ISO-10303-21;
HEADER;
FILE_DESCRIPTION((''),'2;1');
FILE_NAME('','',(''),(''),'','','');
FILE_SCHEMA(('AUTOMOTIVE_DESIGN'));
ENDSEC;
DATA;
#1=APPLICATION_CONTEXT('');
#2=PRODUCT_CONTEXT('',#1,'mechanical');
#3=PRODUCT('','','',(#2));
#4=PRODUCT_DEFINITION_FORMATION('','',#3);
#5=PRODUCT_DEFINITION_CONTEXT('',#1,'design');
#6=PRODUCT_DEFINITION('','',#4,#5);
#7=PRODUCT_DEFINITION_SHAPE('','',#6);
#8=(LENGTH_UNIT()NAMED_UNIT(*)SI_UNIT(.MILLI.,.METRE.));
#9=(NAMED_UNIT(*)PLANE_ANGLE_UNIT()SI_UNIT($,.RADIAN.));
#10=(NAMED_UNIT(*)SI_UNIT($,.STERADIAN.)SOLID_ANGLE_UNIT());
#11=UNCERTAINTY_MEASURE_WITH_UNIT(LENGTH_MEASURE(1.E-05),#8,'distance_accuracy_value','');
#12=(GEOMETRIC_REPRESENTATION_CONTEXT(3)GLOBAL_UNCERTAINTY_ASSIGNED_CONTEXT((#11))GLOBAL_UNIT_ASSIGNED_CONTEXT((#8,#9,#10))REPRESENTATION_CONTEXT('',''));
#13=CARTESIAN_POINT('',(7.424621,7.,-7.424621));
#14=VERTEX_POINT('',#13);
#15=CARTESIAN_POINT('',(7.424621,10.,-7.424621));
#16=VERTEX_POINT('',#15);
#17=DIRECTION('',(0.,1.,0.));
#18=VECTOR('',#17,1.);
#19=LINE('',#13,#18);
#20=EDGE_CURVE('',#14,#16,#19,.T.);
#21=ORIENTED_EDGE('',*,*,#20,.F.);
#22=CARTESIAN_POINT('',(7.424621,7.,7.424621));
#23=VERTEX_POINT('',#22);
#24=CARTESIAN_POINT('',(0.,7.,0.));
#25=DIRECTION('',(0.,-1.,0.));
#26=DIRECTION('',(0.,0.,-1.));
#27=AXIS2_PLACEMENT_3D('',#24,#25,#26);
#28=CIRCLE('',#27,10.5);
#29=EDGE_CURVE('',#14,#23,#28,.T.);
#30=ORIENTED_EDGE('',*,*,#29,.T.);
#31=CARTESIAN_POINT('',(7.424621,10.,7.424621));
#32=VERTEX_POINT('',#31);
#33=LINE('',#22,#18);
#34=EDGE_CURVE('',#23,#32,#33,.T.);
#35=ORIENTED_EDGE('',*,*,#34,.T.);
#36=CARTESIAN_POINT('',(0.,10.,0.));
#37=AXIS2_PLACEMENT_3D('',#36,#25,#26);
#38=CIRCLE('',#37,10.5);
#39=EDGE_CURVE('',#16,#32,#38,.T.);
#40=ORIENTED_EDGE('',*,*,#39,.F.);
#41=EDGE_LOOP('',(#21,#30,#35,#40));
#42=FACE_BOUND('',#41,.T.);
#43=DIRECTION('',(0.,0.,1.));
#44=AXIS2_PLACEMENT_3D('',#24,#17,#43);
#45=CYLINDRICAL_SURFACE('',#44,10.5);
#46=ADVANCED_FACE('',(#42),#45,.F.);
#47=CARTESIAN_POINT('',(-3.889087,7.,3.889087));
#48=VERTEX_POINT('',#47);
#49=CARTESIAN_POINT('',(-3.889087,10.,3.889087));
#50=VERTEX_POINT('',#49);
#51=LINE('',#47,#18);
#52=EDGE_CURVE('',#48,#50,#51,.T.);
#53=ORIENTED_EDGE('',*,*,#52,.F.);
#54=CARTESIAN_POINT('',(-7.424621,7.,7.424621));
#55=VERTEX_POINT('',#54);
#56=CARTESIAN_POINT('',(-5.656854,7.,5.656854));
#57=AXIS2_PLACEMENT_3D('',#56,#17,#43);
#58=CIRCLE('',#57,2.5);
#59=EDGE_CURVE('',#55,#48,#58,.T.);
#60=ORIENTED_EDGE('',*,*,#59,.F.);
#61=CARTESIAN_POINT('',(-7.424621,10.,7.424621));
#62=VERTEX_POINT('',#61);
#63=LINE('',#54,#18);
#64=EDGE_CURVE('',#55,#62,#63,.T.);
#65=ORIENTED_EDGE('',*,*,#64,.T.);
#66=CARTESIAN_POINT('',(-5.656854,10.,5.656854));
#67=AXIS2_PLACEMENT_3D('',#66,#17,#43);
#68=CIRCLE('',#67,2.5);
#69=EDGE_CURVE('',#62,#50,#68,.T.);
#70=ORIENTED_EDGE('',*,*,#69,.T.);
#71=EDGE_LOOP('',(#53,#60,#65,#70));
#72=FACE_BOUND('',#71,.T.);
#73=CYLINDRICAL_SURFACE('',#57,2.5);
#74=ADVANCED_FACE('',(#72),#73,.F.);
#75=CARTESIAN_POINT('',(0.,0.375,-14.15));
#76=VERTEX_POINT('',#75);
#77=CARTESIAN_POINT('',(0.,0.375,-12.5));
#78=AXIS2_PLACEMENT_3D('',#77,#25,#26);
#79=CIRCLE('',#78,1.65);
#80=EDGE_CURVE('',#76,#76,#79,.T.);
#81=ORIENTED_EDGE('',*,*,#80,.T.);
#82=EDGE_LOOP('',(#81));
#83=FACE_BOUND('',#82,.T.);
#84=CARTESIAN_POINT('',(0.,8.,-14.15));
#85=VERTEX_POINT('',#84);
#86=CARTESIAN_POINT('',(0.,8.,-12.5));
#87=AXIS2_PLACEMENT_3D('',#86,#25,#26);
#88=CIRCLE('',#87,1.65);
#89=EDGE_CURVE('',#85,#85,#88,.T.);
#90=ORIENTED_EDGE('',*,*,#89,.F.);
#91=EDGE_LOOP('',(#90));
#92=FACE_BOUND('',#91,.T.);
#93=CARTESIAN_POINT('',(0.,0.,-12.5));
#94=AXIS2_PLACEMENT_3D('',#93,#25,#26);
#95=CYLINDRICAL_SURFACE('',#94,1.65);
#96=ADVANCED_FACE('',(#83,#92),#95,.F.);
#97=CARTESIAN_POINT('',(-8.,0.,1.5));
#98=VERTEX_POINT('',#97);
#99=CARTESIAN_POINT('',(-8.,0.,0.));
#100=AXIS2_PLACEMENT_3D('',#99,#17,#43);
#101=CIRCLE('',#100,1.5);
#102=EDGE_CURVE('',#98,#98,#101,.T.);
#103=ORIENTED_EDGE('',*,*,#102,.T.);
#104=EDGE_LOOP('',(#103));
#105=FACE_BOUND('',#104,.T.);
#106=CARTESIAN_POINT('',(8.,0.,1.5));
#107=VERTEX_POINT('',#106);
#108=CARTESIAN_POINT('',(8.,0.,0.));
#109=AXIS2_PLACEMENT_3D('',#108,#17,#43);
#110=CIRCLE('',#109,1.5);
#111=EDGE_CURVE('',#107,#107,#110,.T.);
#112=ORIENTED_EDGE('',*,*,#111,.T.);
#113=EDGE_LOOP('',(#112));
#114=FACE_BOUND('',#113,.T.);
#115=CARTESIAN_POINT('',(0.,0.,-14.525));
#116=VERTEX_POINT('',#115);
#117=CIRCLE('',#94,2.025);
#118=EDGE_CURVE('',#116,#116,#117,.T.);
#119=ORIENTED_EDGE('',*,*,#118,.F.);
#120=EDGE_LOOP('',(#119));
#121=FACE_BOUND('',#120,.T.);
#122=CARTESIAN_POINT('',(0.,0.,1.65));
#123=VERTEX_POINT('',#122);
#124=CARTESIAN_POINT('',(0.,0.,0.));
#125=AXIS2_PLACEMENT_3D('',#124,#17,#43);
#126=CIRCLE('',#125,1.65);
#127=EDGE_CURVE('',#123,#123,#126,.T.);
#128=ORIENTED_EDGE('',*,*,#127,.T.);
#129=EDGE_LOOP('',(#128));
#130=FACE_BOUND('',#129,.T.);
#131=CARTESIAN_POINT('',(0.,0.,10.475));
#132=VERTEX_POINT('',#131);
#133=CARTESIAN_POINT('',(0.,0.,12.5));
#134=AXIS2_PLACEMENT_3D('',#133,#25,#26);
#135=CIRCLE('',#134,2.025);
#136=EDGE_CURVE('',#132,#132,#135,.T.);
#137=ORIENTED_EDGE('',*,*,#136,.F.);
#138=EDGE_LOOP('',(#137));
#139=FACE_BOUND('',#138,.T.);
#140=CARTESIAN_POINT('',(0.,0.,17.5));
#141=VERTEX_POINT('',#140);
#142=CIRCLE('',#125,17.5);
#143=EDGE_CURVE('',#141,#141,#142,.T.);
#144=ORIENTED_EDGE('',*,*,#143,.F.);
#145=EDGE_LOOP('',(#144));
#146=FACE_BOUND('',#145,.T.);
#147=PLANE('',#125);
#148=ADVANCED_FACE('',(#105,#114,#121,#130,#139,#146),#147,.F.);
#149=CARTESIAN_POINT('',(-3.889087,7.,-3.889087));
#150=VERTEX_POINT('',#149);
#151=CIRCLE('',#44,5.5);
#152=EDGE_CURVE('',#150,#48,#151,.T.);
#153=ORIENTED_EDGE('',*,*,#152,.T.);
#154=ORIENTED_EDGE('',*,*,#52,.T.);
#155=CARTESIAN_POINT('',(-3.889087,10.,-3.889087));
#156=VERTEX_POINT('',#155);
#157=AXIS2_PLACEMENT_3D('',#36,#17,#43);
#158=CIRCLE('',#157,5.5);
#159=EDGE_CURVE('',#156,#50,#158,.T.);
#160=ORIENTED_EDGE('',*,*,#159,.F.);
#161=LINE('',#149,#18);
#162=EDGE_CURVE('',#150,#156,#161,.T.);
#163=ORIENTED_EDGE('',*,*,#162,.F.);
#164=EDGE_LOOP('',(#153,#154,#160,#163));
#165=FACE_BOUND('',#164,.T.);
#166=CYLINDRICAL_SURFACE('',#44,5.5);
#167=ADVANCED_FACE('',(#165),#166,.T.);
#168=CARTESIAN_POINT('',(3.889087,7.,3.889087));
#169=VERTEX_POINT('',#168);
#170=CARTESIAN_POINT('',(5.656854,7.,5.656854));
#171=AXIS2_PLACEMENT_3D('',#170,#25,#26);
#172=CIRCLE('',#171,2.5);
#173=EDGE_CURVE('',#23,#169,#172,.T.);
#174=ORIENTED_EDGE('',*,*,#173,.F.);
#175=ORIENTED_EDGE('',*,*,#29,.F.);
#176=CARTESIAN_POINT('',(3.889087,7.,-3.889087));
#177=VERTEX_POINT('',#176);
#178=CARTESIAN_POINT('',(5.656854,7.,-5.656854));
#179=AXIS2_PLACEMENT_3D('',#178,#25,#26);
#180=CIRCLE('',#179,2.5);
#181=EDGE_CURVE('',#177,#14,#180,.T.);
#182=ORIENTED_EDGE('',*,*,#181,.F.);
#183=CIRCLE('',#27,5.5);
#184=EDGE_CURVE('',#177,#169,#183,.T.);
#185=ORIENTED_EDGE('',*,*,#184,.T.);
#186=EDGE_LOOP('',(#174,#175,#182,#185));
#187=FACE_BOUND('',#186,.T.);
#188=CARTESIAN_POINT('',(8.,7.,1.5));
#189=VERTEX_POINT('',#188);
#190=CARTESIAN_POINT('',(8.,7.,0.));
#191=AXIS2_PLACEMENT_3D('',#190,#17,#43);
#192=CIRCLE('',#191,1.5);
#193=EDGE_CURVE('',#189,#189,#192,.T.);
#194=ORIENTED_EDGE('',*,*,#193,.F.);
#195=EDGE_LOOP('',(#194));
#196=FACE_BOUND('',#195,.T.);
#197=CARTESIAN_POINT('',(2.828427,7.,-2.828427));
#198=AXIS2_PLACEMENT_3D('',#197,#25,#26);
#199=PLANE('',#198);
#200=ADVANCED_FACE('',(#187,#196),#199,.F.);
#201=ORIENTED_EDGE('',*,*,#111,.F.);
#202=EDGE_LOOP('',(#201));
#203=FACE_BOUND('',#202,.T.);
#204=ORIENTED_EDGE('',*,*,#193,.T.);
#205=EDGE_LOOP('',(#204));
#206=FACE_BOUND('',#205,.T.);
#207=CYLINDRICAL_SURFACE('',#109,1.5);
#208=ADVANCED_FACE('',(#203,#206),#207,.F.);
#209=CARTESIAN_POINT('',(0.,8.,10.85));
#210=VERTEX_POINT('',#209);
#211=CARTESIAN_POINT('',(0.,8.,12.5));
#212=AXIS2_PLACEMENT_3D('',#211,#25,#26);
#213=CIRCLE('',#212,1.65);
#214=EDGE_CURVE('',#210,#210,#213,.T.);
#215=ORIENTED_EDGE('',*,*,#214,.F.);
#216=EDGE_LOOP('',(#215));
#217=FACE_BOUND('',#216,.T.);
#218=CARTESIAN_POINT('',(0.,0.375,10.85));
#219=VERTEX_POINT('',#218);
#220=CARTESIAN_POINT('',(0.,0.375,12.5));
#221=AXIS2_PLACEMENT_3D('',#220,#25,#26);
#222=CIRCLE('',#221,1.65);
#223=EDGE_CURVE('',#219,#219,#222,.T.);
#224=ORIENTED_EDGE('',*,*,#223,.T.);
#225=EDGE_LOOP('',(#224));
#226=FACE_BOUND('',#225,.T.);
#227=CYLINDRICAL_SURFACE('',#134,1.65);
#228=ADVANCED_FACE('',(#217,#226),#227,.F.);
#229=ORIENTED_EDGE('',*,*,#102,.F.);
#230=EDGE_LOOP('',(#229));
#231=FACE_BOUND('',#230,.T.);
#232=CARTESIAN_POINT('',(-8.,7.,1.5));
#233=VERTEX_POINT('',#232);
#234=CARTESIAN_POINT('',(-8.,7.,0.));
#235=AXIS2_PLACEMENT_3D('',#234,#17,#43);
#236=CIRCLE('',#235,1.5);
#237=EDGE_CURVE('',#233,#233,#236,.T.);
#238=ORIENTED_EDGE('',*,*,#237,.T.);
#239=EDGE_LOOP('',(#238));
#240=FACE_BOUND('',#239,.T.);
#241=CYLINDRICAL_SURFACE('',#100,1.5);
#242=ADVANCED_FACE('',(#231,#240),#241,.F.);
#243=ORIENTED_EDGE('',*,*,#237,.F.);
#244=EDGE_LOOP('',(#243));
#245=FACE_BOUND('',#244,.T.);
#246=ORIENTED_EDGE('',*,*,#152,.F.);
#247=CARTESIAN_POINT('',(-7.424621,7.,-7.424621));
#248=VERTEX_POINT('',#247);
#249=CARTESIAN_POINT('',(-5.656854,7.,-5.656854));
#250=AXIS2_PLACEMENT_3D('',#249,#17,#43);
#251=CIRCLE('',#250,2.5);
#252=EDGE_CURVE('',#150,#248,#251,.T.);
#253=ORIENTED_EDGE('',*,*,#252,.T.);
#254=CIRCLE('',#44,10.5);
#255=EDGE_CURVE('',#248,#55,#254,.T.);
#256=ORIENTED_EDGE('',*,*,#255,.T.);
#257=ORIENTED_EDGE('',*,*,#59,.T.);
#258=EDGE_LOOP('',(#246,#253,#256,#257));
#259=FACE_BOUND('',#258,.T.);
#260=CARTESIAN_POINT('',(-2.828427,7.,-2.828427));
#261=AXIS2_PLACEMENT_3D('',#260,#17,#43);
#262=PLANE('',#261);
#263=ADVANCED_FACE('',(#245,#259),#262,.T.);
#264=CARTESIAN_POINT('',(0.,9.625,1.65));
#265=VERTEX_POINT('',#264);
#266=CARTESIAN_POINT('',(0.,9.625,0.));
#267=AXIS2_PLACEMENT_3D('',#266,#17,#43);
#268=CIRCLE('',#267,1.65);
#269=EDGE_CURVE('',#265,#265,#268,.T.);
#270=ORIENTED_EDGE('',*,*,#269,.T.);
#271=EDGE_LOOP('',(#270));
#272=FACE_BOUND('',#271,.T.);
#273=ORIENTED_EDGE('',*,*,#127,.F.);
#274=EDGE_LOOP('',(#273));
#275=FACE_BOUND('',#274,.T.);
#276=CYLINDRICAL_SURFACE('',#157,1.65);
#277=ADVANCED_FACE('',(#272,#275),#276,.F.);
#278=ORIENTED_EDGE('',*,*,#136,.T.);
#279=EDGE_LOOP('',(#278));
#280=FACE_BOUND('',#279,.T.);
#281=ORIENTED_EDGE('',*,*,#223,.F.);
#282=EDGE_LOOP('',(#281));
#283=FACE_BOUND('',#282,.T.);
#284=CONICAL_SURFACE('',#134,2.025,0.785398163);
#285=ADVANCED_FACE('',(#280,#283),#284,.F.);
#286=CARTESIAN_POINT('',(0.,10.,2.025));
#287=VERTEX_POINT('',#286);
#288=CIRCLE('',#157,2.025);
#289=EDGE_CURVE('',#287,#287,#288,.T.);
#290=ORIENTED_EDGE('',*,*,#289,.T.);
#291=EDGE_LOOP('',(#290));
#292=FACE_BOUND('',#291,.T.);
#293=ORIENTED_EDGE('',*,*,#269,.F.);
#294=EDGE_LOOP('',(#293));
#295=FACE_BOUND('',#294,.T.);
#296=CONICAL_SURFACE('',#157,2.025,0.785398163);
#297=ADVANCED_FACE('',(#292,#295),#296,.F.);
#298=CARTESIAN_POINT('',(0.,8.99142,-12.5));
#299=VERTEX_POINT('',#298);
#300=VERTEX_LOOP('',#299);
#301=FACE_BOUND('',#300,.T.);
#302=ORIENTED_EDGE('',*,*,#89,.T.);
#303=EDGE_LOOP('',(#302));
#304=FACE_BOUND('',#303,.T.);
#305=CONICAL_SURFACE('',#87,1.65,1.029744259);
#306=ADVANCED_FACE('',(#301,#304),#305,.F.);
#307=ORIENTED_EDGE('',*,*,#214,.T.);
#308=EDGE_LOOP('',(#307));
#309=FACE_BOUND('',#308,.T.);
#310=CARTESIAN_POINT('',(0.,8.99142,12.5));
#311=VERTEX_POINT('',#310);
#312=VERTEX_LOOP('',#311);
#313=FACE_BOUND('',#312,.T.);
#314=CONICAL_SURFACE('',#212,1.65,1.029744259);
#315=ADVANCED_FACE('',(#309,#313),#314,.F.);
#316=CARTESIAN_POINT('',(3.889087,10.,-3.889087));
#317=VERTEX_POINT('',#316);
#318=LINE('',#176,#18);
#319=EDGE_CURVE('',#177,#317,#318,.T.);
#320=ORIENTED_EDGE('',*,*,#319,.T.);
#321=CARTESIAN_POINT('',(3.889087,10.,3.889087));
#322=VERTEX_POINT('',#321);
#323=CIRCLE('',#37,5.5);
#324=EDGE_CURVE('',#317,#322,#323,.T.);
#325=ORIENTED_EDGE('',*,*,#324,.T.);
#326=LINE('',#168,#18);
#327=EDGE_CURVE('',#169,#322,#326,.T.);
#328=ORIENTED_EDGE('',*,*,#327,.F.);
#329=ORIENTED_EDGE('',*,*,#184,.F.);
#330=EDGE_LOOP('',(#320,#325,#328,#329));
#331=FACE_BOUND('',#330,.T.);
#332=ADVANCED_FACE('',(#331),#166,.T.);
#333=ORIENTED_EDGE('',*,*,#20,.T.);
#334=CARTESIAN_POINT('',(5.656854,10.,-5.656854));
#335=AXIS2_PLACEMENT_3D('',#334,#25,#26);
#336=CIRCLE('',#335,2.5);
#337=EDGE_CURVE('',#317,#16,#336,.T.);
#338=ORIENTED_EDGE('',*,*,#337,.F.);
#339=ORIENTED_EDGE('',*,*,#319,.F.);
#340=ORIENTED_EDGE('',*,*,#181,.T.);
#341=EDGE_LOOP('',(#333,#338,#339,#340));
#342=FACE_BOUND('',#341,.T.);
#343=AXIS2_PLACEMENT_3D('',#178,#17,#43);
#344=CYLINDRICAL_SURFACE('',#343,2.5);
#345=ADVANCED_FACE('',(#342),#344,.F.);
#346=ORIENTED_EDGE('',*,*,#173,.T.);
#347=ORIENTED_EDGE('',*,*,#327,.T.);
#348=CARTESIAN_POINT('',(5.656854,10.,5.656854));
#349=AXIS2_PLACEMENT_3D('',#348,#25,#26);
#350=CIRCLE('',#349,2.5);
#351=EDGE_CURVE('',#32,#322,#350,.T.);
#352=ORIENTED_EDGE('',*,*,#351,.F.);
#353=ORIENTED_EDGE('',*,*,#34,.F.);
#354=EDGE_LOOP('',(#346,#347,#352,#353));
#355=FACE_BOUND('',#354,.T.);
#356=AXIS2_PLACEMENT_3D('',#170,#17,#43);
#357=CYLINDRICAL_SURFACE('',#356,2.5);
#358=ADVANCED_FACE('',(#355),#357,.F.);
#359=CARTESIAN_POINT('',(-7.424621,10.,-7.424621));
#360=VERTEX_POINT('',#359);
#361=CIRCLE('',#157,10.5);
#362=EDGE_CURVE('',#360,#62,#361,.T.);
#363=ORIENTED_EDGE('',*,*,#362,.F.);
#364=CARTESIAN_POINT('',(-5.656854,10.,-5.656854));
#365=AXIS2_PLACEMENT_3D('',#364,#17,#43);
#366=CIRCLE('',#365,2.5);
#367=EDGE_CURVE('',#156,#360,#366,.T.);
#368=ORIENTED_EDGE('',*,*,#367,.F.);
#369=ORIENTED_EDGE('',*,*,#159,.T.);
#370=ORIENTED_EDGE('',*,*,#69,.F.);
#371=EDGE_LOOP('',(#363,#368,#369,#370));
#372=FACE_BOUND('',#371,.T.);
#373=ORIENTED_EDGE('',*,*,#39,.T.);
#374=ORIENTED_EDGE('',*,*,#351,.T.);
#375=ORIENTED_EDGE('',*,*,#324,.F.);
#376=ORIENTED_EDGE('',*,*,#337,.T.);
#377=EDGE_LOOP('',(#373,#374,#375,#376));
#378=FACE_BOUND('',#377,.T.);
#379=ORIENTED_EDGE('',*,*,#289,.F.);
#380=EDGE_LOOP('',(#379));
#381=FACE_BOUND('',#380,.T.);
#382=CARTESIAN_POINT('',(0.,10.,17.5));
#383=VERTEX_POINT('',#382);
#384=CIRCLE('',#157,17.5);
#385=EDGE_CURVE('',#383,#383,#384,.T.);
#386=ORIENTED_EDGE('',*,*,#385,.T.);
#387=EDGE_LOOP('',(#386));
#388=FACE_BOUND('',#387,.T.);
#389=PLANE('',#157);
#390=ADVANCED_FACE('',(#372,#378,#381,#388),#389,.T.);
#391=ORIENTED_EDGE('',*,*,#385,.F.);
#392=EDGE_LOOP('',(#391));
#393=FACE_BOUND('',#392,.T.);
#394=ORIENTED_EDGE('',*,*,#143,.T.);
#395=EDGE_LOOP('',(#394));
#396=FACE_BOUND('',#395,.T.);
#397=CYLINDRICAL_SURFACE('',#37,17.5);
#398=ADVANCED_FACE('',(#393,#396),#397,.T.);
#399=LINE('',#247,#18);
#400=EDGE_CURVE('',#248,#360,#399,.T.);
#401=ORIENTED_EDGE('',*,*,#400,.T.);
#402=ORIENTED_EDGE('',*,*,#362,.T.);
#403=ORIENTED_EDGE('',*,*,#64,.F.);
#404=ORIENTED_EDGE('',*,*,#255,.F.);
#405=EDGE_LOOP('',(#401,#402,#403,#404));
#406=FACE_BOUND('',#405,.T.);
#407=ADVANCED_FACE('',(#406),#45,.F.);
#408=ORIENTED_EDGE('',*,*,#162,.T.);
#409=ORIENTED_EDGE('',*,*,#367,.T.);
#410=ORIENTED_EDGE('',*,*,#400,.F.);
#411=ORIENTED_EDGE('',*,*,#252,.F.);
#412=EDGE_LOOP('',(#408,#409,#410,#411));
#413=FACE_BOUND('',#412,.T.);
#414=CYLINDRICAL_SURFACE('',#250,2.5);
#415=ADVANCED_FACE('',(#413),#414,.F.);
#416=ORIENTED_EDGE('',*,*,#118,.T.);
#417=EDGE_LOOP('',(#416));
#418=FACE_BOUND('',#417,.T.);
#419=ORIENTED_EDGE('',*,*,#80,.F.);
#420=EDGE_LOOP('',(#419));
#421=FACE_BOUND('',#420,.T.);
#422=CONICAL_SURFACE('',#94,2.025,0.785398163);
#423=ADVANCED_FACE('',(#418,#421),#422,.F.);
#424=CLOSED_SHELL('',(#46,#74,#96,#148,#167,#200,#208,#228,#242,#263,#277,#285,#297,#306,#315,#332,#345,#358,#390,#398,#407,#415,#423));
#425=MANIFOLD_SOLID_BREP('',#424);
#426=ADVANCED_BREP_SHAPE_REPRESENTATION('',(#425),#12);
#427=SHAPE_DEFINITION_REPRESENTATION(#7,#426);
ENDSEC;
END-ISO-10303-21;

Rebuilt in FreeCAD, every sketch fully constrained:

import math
import FreeCAD as App
import Part
import Sketcher

V = App.Vector
Q = App.Units.Quantity

doc = App.newDocument("Part")
body = doc.addObject("PartDesign::Body", "Body")

sketch1 = body.newObject("Sketcher::SketchObject", "Sketch")
sketch1.AttachmentSupport = (doc.getObject("XZ_Plane"), [""])
sketch1.MapMode = "FlatFace"
sketch1.addGeometry(Part.Circle(V(0, 0, 0), V(0, 0, 1), 18), False)
sketch1.addConstraint([
    Sketcher.Constraint("Coincident", 0, 3, -1, 1),
    Sketcher.Constraint("Diameter", 0, Q("35 mm")),
])
pad1 = body.newObject("PartDesign::Pad", "Pad")
pad1.Profile = sketch1
pad1.Length = 10
pad1.Reversed = True

sketch2 = body.newObject("Sketcher::SketchObject", "Sketch001")
sketch2.AttachmentSupport = (doc.getObject("XZ_Plane"), [""])
sketch2.MapMode = "FlatFace"
sketch2.AttachmentOffset = App.Placement(V(0, 0, -10), App.Rotation())
sketch2.addGeometry([
    Part.ArcOfCircle(Part.Circle(V(0, 0, 0), V(0, 0, 1), 10.5), math.radians(135), math.radians(225)),
    Part.ArcOfCircle(Part.Circle(V(-5.7, 5.7, 0), V(0, 0, 1), 2.5), math.radians(-45), math.radians(135)),
    Part.ArcOfCircle(Part.Circle(V(0, 0, 0), V(0, 0, 1), 5.5), math.radians(135), math.radians(225)),
    Part.ArcOfCircle(Part.Circle(V(-5.7, -5.7, 0), V(0, 0, 1), 2.5), math.radians(-135), math.radians(45)),
    Part.ArcOfCircle(Part.Circle(V(0, 0, 0), V(0, 0, 1), 10.5), math.radians(-45), math.radians(45)),
    Part.ArcOfCircle(Part.Circle(V(5.7, -5.7, 0), V(0, 0, 1), 2.5), math.radians(135), math.radians(315)),
    Part.ArcOfCircle(Part.Circle(V(0, 0, 0), V(0, 0, 1), 5.5), math.radians(-45), math.radians(45)),
    Part.ArcOfCircle(Part.Circle(V(5.7, 5.7, 0), V(0, 0, 1), 2.5), math.radians(45), math.radians(225)),
], False)
sketch2.addConstraint([
    Sketcher.Constraint("Tangent", 0, 1, 1, 2),
    Sketcher.Constraint("Tangent", 1, 1, 2, 1),
    Sketcher.Constraint("Tangent", 2, 2, 3, 2),
    Sketcher.Constraint("Tangent", 3, 1, 0, 2),
    Sketcher.Constraint("Tangent", 4, 1, 5, 2),
    Sketcher.Constraint("Tangent", 5, 1, 6, 1),
    Sketcher.Constraint("Tangent", 6, 2, 7, 2),
    Sketcher.Constraint("Tangent", 7, 1, 4, 2),
    Sketcher.Constraint("Coincident", 0, 3, -1, 1),
    Sketcher.Constraint("Coincident", 2, 3, -1, 1),
    Sketcher.Constraint("Coincident", 4, 3, -1, 1),
    Sketcher.Constraint("Coincident", 6, 3, -1, 1),
    Sketcher.Constraint("Equal", 0, 4),
    Sketcher.Constraint("Equal", 3, 5),
    Sketcher.Constraint("Horizontal", 3, 3, 5, 3),
    Sketcher.Constraint("Horizontal", 1, 3, 7, 3),
    Sketcher.Constraint("Vertical", 1, 3, 3, 3),
    Sketcher.Constraint("Radius", 0, Q("10.5 mm")),
    Sketcher.Constraint("Radius", 1, Q("2.5 mm")),
    Sketcher.Constraint("DistanceX", 0, 1, -1, 1, Q("7.424621 mm")),
])
pocket1 = body.newObject("PartDesign::Pocket", "Pocket")
pocket1.Profile = sketch2
pocket1.Length = 3
pocket1.Reversed = True

sketch3 = body.newObject("Sketcher::SketchObject", "Sketch002")
sketch3.AttachmentSupport = (doc.getObject("XZ_Plane"), [""])
sketch3.MapMode = "FlatFace"
sketch3.addGeometry([
    Part.Circle(V(0, 12.5, 0), V(0, 0, 1), 1.6),
    Part.Circle(V(0, -12.5, 0), V(0, 0, 1), 1.6),
], False)
sketch3.addConstraint([
    Sketcher.Constraint("Equal", 0, 1),
    Sketcher.Constraint("Symmetric", 0, 3, 1, 3, -1, 1),
    Sketcher.Constraint("PointOnObject", 0, 3, -2),
    Sketcher.Constraint("Diameter", 0, Q("3.3 mm")),
    Sketcher.Constraint("DistanceY", 1, 3, 0, 3, Q("25 mm")),
])
doc.recompute()
hole = body.newObject("PartDesign::Hole", "Hole")
hole.Profile = sketch3
hole.ThreadType = "None"
hole.Diameter = 3.3
hole.DepthType = "Dimension"
hole.Depth = 8
hole.DrillPoint = "Angled"
hole.DrillPointAngle = 118
hole.HoleCutType = "Countersink"
hole.HoleCutDiameter = 4.05
hole.HoleCutCountersinkAngle = 90

sketch4 = body.newObject("Sketcher::SketchObject", "Sketch003")
sketch4.AttachmentSupport = (doc.getObject("XZ_Plane"), [""])
sketch4.MapMode = "FlatFace"
sketch4.AttachmentOffset = App.Placement(V(0, 0, -10), App.Rotation())
sketch4.addGeometry(Part.Circle(V(0, 0, 0), V(0, 0, 1), 1.6), False)
sketch4.addConstraint([
    Sketcher.Constraint("Coincident", 0, 3, -1, 1),
    Sketcher.Constraint("Diameter", 0, Q("3.3 mm")),
])
doc.recompute()
hole2 = body.newObject("PartDesign::Hole", "Hole001")
hole2.Profile = sketch4
hole2.ThreadType = "None"
hole2.Diameter = 3.3
hole2.DepthType = "ThroughAll"
hole2.HoleCutType = "Countersink"
hole2.HoleCutDiameter = 4.05
hole2.HoleCutCountersinkAngle = 90
hole2.Reversed = True

sketch5 = body.newObject("Sketcher::SketchObject", "Sketch004")
sketch5.AttachmentSupport = (doc.getObject("XZ_Plane"), [""])
sketch5.MapMode = "FlatFace"
sketch5.AttachmentOffset = App.Placement(V(0, 0, -7), App.Rotation())
sketch5.addGeometry([
    Part.Circle(V(-8, 0, 0), V(0, 0, 1), 1.5),
    Part.Circle(V(8, 0, 0), V(0, 0, 1), 1.5),
], False)
sketch5.addConstraint([
    Sketcher.Constraint("Equal", 0, 1),
    Sketcher.Constraint("Symmetric", 0, 3, 1, 3, -1, 1),
    Sketcher.Constraint("PointOnObject", 0, 3, -1),
    Sketcher.Constraint("Diameter", 0, Q("3 mm")),
    Sketcher.Constraint("DistanceX", 0, 3, -1, 1, Q("8 mm")),
])
pocket2 = body.newObject("PartDesign::Pocket", "Pocket001")
pocket2.Profile = sketch5
pocket2.Type = "ThroughAll"
pocket2.Reversed = True

doc.recompute()
